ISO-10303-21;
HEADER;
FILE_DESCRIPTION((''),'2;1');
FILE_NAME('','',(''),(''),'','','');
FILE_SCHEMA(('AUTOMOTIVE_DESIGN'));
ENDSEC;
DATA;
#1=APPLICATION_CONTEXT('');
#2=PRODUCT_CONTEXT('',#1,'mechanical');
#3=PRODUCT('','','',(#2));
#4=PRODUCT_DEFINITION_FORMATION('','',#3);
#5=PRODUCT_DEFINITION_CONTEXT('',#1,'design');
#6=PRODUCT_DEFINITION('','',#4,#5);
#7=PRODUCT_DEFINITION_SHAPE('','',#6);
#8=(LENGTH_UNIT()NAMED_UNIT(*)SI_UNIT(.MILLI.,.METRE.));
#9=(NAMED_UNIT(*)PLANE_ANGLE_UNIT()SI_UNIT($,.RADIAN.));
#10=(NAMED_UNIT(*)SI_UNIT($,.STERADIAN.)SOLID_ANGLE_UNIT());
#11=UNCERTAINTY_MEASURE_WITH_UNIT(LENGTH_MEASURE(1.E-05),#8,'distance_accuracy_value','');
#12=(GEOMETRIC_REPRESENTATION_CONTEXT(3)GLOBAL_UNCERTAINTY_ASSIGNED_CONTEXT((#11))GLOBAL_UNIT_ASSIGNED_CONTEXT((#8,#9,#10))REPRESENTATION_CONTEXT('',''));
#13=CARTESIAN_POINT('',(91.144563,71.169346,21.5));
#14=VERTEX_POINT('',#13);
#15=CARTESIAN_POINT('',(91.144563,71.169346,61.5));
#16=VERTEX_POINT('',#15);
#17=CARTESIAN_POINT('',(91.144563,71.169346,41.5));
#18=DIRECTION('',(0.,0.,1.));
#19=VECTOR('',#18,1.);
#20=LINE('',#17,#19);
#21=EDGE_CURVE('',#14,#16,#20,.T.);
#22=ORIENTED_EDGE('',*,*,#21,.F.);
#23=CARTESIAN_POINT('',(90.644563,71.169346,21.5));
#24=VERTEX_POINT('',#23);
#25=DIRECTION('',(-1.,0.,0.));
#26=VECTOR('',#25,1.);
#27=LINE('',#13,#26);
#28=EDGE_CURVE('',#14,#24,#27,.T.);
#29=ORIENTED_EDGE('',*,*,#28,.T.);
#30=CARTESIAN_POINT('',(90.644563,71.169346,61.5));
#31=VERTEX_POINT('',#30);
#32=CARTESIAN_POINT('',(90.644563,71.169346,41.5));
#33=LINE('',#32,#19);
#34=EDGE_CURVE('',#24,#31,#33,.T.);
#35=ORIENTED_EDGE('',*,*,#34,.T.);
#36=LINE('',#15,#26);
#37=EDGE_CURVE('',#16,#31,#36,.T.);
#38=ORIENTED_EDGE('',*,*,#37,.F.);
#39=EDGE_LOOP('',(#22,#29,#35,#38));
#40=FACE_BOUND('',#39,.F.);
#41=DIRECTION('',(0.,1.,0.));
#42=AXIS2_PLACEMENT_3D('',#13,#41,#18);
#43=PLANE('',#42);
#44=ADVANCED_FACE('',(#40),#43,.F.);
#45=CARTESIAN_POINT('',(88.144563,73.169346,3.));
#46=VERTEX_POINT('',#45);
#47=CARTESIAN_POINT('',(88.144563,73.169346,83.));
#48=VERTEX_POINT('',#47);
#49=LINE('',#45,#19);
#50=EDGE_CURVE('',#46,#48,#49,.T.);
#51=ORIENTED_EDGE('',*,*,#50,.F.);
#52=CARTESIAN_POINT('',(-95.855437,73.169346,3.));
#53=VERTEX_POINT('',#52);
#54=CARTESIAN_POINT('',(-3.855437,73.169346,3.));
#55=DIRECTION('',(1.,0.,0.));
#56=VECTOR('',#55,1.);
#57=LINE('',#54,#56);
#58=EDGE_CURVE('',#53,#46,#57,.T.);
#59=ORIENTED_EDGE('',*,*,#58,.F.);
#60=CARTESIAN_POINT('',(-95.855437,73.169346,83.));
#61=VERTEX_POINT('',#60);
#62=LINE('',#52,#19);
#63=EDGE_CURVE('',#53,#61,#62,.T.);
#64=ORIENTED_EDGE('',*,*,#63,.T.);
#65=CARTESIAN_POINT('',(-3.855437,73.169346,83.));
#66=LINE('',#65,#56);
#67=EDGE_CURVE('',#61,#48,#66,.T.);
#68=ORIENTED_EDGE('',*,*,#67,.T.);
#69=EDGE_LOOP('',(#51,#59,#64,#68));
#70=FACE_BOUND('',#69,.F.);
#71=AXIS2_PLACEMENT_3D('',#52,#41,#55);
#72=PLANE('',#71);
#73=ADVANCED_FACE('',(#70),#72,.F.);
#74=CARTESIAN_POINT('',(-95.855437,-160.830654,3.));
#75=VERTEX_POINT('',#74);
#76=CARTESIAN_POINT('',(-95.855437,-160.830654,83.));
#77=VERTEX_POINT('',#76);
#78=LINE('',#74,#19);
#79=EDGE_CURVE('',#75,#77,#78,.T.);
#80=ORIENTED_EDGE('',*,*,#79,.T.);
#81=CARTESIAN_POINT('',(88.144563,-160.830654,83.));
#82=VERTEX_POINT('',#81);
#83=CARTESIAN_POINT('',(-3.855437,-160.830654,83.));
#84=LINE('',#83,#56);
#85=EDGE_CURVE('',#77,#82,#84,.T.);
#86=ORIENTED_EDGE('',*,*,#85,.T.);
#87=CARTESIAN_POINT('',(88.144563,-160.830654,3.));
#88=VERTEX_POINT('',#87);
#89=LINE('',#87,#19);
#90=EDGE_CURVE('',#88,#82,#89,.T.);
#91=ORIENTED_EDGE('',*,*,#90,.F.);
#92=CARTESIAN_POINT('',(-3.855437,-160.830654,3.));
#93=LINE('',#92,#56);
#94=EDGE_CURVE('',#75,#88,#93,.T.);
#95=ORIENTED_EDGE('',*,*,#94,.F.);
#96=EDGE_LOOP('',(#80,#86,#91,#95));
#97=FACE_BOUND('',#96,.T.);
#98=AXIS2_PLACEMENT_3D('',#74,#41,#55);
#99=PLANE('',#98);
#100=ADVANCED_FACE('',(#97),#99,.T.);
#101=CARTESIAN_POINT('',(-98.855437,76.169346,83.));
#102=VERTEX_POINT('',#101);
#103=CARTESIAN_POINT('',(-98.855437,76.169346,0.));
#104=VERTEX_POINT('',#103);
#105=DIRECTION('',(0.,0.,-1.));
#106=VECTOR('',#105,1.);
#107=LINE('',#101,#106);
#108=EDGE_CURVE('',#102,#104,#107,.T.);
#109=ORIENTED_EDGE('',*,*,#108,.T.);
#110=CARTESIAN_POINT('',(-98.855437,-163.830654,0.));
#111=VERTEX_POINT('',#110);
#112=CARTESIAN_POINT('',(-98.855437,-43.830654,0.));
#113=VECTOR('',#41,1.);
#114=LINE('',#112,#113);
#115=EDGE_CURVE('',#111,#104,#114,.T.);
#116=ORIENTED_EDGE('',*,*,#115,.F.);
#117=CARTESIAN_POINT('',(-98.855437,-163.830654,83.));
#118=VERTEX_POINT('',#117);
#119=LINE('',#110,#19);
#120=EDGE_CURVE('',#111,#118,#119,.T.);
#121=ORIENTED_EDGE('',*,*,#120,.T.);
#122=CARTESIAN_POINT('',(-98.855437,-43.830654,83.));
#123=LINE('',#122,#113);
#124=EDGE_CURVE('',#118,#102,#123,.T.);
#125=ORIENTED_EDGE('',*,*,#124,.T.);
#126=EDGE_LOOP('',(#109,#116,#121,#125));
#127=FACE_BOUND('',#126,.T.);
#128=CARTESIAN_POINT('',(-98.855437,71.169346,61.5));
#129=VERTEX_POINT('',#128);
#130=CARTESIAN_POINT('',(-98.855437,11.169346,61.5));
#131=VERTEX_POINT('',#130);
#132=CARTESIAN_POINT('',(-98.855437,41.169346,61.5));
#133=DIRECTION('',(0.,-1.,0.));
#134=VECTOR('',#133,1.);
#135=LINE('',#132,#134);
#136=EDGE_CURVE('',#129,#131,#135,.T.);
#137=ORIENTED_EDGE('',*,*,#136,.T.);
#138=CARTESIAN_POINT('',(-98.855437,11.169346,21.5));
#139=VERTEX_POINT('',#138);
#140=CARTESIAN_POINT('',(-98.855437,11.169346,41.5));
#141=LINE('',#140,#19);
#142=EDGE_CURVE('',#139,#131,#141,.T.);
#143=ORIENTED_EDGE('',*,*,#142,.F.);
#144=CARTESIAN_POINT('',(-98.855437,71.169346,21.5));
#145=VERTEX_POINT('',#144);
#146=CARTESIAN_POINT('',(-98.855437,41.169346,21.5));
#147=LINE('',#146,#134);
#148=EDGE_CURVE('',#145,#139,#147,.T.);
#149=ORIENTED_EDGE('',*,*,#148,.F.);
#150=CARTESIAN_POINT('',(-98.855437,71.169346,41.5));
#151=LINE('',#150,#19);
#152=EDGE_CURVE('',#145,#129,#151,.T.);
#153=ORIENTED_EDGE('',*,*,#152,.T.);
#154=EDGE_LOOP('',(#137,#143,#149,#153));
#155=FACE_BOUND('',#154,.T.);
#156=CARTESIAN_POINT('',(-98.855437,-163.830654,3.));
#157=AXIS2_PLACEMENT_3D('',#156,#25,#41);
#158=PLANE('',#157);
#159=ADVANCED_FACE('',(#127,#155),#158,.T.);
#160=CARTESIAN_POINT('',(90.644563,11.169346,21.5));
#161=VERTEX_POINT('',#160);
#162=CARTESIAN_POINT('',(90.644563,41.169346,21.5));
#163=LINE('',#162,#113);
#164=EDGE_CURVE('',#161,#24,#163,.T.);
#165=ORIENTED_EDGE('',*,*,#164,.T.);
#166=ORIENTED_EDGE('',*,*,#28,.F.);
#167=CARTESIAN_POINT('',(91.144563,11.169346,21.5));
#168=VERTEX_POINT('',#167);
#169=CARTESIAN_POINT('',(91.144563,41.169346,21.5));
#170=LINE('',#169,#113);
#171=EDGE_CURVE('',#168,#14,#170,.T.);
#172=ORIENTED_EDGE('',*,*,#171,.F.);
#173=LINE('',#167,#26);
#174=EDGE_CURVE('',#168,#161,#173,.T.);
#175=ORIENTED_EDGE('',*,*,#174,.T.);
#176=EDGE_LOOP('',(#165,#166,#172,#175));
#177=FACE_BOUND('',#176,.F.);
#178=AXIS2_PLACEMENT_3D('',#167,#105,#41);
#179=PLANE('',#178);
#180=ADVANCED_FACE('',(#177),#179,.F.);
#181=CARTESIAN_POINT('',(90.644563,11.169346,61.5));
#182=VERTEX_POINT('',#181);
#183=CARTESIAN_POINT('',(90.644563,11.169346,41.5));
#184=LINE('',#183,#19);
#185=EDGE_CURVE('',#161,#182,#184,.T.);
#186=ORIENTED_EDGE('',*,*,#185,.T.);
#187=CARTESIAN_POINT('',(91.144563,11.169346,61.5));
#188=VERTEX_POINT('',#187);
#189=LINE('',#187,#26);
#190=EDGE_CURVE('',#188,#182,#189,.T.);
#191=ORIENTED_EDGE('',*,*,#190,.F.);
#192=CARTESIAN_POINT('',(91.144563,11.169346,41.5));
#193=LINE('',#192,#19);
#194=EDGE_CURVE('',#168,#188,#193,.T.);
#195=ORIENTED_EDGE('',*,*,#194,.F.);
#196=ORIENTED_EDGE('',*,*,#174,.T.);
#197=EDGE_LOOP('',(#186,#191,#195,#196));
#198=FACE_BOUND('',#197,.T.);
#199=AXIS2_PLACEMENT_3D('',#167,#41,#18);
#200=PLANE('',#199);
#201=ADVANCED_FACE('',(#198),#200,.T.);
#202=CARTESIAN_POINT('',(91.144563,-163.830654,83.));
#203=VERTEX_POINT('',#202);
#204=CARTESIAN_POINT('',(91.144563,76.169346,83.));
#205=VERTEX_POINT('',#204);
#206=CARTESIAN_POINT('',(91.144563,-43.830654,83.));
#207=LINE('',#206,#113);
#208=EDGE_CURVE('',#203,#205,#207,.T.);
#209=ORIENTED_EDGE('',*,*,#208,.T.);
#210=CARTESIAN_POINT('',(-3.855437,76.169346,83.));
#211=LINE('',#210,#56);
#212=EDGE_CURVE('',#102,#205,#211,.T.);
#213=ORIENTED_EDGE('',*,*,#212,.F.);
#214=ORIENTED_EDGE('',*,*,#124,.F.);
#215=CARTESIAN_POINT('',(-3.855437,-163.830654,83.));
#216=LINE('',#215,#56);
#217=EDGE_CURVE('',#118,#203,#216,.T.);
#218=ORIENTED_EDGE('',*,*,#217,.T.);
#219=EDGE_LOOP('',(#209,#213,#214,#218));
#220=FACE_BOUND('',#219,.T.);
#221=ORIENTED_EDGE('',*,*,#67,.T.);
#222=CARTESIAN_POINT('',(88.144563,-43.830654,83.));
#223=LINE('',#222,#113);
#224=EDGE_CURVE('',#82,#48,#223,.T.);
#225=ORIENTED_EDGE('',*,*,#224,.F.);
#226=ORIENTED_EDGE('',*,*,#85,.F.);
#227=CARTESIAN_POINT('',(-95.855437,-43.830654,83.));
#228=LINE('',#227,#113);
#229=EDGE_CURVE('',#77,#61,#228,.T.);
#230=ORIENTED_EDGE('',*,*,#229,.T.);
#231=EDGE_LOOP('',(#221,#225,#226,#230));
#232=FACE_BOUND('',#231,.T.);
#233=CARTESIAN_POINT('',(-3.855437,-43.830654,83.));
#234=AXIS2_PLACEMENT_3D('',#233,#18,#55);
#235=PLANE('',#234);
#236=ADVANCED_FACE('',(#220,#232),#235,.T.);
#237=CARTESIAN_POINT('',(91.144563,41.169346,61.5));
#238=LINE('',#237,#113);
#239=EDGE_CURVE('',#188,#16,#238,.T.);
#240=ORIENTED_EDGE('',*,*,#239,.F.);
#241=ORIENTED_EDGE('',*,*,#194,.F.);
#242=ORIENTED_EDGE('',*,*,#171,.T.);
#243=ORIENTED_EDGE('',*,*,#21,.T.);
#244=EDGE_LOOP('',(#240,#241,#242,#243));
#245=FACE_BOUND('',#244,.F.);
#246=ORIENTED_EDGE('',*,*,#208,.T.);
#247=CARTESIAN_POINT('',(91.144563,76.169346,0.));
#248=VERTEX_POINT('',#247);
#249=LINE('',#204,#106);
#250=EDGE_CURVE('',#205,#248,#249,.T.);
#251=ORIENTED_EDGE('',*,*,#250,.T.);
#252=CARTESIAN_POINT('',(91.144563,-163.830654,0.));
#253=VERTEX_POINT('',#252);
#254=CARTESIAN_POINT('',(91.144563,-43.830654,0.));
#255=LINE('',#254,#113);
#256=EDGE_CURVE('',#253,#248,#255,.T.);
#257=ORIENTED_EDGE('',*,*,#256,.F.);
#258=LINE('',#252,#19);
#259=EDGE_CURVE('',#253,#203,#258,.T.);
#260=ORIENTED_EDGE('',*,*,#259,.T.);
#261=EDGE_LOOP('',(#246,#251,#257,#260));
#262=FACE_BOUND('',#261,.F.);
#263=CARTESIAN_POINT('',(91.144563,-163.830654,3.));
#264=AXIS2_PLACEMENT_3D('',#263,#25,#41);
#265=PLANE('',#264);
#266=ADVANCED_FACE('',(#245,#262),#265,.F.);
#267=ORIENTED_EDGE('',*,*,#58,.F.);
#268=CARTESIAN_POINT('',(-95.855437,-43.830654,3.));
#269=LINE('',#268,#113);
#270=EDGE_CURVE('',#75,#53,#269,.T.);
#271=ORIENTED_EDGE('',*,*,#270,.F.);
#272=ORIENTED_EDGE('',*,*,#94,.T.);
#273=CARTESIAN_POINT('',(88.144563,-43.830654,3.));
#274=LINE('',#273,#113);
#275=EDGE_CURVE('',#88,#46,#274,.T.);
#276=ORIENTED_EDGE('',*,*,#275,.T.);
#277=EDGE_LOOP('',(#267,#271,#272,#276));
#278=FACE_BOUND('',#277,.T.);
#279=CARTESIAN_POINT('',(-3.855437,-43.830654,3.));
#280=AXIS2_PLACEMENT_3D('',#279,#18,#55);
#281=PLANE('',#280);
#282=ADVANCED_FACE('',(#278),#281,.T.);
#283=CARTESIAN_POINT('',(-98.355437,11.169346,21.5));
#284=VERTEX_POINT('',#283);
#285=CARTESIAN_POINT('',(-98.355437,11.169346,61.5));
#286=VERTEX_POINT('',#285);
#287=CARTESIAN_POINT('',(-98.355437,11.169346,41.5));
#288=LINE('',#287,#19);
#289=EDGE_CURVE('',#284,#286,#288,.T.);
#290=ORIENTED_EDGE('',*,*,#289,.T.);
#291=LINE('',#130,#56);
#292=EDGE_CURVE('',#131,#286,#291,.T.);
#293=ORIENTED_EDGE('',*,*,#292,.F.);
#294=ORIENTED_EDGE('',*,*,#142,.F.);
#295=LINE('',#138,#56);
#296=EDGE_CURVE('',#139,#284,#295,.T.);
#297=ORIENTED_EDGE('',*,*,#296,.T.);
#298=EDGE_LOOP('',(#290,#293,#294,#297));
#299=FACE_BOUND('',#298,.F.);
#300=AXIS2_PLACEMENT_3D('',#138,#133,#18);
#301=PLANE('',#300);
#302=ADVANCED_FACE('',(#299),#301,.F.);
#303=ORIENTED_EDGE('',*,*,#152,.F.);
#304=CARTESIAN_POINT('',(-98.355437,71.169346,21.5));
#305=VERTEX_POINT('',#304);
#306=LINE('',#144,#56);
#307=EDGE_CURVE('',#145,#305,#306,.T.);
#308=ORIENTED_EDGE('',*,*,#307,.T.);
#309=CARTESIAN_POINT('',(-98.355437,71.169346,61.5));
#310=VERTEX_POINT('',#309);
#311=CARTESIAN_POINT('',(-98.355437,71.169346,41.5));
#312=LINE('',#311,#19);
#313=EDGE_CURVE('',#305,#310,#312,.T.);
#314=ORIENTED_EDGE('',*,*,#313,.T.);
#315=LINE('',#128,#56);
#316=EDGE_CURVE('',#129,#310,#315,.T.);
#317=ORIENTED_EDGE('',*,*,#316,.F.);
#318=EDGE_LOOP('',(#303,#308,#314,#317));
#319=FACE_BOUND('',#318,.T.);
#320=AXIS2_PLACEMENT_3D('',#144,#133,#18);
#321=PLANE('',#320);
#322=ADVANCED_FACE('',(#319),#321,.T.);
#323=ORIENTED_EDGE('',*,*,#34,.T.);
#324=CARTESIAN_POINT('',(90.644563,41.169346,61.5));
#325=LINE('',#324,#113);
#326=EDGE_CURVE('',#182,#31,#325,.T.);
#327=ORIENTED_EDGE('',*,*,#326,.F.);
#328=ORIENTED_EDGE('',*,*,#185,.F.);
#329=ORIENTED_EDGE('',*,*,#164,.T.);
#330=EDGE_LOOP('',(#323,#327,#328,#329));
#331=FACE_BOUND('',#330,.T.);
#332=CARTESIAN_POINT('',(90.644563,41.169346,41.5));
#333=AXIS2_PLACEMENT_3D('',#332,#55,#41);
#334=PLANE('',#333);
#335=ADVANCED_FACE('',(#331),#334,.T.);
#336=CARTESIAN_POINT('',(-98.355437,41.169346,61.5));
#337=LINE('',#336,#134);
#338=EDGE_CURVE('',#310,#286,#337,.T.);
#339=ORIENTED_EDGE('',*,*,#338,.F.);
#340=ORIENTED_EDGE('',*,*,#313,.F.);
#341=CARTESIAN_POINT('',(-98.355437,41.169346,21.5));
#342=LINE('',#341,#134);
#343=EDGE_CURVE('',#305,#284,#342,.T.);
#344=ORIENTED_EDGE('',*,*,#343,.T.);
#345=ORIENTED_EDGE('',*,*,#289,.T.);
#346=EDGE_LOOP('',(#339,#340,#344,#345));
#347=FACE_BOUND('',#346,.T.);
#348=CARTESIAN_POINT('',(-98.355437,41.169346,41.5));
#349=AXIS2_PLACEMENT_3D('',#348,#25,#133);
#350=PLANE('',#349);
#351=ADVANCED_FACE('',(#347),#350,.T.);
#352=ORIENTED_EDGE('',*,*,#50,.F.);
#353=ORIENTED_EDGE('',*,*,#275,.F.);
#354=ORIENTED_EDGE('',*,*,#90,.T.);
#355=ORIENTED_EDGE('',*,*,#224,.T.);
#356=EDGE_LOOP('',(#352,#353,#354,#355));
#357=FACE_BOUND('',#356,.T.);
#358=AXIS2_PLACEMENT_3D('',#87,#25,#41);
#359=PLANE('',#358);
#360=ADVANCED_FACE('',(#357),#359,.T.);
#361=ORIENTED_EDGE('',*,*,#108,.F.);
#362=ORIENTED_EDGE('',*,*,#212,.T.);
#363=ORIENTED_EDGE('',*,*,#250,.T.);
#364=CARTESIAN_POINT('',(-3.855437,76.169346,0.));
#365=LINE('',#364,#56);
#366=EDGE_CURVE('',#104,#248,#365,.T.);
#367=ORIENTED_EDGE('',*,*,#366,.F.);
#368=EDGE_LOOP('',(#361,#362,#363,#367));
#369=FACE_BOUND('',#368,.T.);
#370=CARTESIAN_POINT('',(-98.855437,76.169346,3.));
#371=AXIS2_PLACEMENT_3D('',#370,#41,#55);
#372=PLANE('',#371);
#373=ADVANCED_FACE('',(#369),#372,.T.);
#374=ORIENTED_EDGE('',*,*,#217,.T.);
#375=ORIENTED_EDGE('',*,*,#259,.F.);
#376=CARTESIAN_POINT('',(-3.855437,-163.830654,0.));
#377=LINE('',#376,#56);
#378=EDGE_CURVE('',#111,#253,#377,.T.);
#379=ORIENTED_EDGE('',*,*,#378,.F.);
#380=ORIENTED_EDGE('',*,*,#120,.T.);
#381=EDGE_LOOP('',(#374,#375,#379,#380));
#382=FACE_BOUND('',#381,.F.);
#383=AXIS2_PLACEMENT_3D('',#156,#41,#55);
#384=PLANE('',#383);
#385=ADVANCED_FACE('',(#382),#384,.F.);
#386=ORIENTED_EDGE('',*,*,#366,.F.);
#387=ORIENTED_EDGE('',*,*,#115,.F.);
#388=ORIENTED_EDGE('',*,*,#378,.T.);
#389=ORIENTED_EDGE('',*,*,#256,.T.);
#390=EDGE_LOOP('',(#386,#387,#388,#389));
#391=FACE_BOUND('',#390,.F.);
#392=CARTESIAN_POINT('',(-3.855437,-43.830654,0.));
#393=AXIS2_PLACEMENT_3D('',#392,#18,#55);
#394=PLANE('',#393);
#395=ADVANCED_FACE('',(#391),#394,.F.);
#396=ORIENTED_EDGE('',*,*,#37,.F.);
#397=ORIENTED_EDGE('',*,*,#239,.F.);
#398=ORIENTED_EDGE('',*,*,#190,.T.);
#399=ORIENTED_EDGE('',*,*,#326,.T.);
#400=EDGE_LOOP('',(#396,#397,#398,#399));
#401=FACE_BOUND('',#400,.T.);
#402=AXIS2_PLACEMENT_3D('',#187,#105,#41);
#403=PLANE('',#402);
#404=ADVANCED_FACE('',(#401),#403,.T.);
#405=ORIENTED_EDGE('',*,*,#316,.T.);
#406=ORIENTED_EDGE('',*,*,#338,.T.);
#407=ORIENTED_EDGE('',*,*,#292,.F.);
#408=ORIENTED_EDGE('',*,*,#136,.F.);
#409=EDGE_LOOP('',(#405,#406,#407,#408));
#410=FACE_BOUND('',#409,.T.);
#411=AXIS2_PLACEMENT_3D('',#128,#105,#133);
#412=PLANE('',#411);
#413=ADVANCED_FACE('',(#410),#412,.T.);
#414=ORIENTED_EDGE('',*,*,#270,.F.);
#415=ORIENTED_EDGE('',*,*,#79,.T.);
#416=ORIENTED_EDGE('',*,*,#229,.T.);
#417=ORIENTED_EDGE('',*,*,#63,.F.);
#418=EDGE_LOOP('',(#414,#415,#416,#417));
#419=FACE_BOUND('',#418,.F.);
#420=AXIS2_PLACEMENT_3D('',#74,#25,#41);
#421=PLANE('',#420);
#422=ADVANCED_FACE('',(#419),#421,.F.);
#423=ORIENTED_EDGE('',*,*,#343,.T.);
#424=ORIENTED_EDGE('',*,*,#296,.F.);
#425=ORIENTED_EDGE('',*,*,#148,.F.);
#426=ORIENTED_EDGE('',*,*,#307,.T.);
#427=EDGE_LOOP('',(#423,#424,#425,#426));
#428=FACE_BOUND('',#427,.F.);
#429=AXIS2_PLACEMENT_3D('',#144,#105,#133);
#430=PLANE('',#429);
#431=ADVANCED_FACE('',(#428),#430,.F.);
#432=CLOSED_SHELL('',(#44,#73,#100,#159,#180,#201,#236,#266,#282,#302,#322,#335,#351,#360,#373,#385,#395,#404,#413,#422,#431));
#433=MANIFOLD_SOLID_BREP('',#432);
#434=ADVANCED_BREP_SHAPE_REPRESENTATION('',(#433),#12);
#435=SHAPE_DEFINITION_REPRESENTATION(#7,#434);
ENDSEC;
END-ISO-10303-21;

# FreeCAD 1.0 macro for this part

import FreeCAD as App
import Part
import Sketcher

V = App.Vector


def add_polygon(sketch, points):
    """Adds a closed chain of lines whose ends are joined by coincident constraints."""
    first, n = sketch.GeometryCount, len(points)
    for a, b in zip(points, points[1:] + points[:1]):
        sketch.addGeometry(Part.LineSegment(App.Vector(*a, 0), App.Vector(*b, 0)), False)
    for i in range(n):
        sketch.addConstraint(Sketcher.Constraint("Coincident", first + i, 2, first + (i + 1) % n, 1))

doc = App.newDocument("Part")
params = doc.addObject("Spreadsheet::Sheet", "Params")
for row, (alias, value) in enumerate([
    ("sketch1_width", "190 mm"),
    ("sketch1_height", "240 mm"),
    ("pad1_length", "3 mm"),
    ("sketch2_width", "190 mm"),
    ("sketch2_width2", "184 mm"),
    ("sketch2_height", "240 mm"),
    ("sketch2_height2", "234 mm"),
    ("pad2_length", "80 mm"),
    ("sketch3_width", "60 mm"),
    ("sketch3_height", "40 mm"),
    ("pocket1_length", "0.5 mm"),
    ("sketch4_width", "60 mm"),
    ("sketch4_height", "40 mm"),
    ("pocket2_length", "0.5 mm"),
], start=1):
    params.set(f"A{row}", alias)
    params.set(f"B{row}", "=" + value)
    params.setAlias(f"B{row}", alias)

body = doc.addObject("PartDesign::Body", "Body")

# Sketch on XY plane
sketch1 = body.newObject("Sketcher::SketchObject", "Sketch")
sketch1.AttachmentSupport = (doc.getObject("XY_Plane"), [""])
sketch1.MapMode = "FlatFace"
add_polygon(sketch1, [(-98.855437, 76.169346), (-98.855437, -163.830654), (91.144563, -163.830654), (91.144563, 76.169346)])  # lines 0-3
sketch1.addConstraint(Sketcher.Constraint("Vertical", 0))
sketch1.addConstraint(Sketcher.Constraint("Horizontal", 1))
sketch1.addConstraint(Sketcher.Constraint("Vertical", 2))
sketch1.addConstraint(Sketcher.Constraint("Horizontal", 3))
sketch1.addConstraint(Sketcher.Constraint("DistanceX", 1, 1, 1, 2, 190.0))
sketch1.addConstraint(Sketcher.Constraint("DistanceY", 0, 2, 0, 1, 240.0))
sketch1.addConstraint(Sketcher.Constraint("DistanceX", 0, 2, -1, 1, 98.855437))
sketch1.addConstraint(Sketcher.Constraint("DistanceY", 0, 2, -1, 1, 163.830654))
sketch1.setExpression("Constraints[8]", "Params.sketch1_width")
sketch1.setExpression("Constraints[9]", "Params.sketch1_height")
pad1 = body.newObject("PartDesign::Pad", "Pad")
pad1.Profile = sketch1
pad1.setExpression("Length", "Params.pad1_length")

# Sketch on XY plane
sketch2 = body.newObject("Sketcher::SketchObject", "Sketch001")
sketch2.AttachmentSupport = (doc.getObject("XY_Plane"), [""])
sketch2.MapMode = "FlatFace"
sketch2.AttachmentOffset = App.Placement(V(0, 0, 3), App.Rotation())
add_polygon(sketch2, [(-98.855437, 76.169346), (-98.855437, -163.830654), (91.144563, -163.830654), (91.144563, 76.169346)])  # lines 0-3
add_polygon(sketch2, [(88.144563, -160.830654), (-95.855437, -160.830654), (-95.855437, 73.169346), (88.144563, 73.169346)])  # lines 4-7
sketch2.addConstraint(Sketcher.Constraint("Vertical", 0))
sketch2.addConstraint(Sketcher.Constraint("Horizontal", 1))
sketch2.addConstraint(Sketcher.Constraint("Vertical", 2))
sketch2.addConstraint(Sketcher.Constraint("Horizontal", 3))
sketch2.addConstraint(Sketcher.Constraint("Horizontal", 4))
sketch2.addConstraint(Sketcher.Constraint("Vertical", 5))
sketch2.addConstraint(Sketcher.Constraint("Horizontal", 6))
sketch2.addConstraint(Sketcher.Constraint("Vertical", 7))
sketch2.addConstraint(Sketcher.Constraint("DistanceX", 1, 1, 1, 2, 190.0))
sketch2.addConstraint(Sketcher.Constraint("DistanceX", 4, 2, 4, 1, 184.0))
sketch2.addConstraint(Sketcher.Constraint("DistanceY", 0, 2, 0, 1, 240.0))
sketch2.addConstraint(Sketcher.Constraint("DistanceY", 5, 1, 5, 2, 234.0))
sketch2.addConstraint(Sketcher.Constraint("DistanceX", 0, 2, 4, 2, 3.0))
sketch2.addConstraint(Sketcher.Constraint("DistanceY", 0, 2, 4, 2, 3.0))
sketch2.addConstraint(Sketcher.Constraint("DistanceX", 0, 2, -1, 1, 98.855437))
sketch2.addConstraint(Sketcher.Constraint("DistanceY", 0, 2, -1, 1, 163.830654))
sketch2.setExpression("Constraints[16]", "Params.sketch2_width")
sketch2.setExpression("Constraints[17]", "Params.sketch2_width2")
sketch2.setExpression("Constraints[18]", "Params.sketch2_height")
sketch2.setExpression("Constraints[19]", "Params.sketch2_height2")
pad2 = body.newObject("PartDesign::Pad", "Pad001")
pad2.Profile = sketch2
pad2.setExpression("Length", "Params.pad2_length")

# Sketch on YZ plane
sketch3 = body.newObject("Sketcher::SketchObject", "Sketch002")
sketch3.AttachmentSupport = (doc.getObject("YZ_Plane"), [""])
sketch3.MapMode = "FlatFace"
sketch3.AttachmentOffset = App.Placement(V(0, 0, -98.855437), App.Rotation())
add_polygon(sketch3, [(71.169346, 61.5), (71.169346, 21.5), (11.169346, 21.5), (11.169346, 61.5)])  # lines 0-3
sketch3.addConstraint(Sketcher.Constraint("Vertical", 0))
sketch3.addConstraint(Sketcher.Constraint("Horizontal", 1))
sketch3.addConstraint(Sketcher.Constraint("Vertical", 2))
sketch3.addConstraint(Sketcher.Constraint("Horizontal", 3))
sketch3.addConstraint(Sketcher.Constraint("DistanceX", 1, 2, 1, 1, 60.0))
sketch3.addConstraint(Sketcher.Constraint("DistanceY", 0, 2, 0, 1, 40.0))
sketch3.addConstraint(Sketcher.Constraint("DistanceY", -1, 1, 0, 2, 21.5))
sketch3.addConstraint(Sketcher.Constraint("DistanceX", -1, 1, 0, 2, 71.169346))
sketch3.setExpression("Constraints[8]", "Params.sketch3_width")
sketch3.setExpression("Constraints[9]", "Params.sketch3_height")
pocket1 = body.newObject("PartDesign::Pocket", "Pocket")
pocket1.Profile = sketch3
pocket1.setExpression("Length", "Params.pocket1_length")
pocket1.Reversed = True

# Sketch on YZ plane
sketch4 = body.newObject("Sketcher::SketchObject", "Sketch003")
sketch4.AttachmentSupport = (doc.getObject("YZ_Plane"), [""])
sketch4.MapMode = "FlatFace"
sketch4.AttachmentOffset = App.Placement(V(0, 0, 91.144563), App.Rotation())
add_polygon(sketch4, [(11.169346, 61.5), (11.169346, 21.5), (71.169346, 21.5), (71.169346, 61.5)])  # lines 0-3
sketch4.addConstraint(Sketcher.Constraint("Vertical", 0))
sketch4.addConstraint(Sketcher.Constraint("Horizontal", 1))
sketch4.addConstraint(Sketcher.Constraint("Vertical", 2))
sketch4.addConstraint(Sketcher.Constraint("Horizontal", 3))
sketch4.addConstraint(Sketcher.Constraint("DistanceX", 1, 1, 1, 2, 60.0))
sketch4.addConstraint(Sketcher.Constraint("DistanceY", 0, 2, 0, 1, 40.0))
sketch4.addConstraint(Sketcher.Constraint("DistanceY", -1, 1, 0, 2, 21.5))
sketch4.addConstraint(Sketcher.Constraint("DistanceX", -1, 1, 0, 2, 11.169346))
sketch4.setExpression("Constraints[8]", "Params.sketch4_width")
sketch4.setExpression("Constraints[9]", "Params.sketch4_height")
pocket2 = body.newObject("PartDesign::Pocket", "Pocket001")
pocket2.Profile = sketch4
pocket2.setExpression("Length", "Params.pocket2_length")

doc.recompute()
